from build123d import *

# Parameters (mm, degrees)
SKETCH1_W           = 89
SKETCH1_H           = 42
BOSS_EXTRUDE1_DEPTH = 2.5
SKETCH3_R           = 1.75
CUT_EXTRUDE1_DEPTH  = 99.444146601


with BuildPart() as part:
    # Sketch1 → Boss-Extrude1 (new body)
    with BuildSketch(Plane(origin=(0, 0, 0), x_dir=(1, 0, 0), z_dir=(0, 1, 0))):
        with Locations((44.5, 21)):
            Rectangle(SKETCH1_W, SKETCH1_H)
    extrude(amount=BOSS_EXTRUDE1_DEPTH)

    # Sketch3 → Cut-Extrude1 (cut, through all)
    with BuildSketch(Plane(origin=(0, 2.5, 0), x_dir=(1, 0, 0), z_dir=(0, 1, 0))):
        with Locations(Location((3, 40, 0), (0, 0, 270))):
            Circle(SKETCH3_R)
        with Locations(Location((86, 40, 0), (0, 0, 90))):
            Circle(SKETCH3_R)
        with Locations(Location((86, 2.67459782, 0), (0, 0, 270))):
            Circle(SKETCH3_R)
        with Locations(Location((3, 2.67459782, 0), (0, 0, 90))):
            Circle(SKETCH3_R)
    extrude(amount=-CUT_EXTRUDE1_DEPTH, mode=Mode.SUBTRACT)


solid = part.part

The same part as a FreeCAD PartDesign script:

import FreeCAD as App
import Part
import Sketcher

V = App.Vector
Q = App.Units.Quantity


def add_polygon(sketch, points):
    """Adds a closed chain of lines whose ends are joined by coincident constraints."""
    first, n = sketch.GeometryCount, len(points)
    for a, b in zip(points, points[1:] + points[:1]):
        sketch.addGeometry(Part.LineSegment(App.Vector(*a, 0), App.Vector(*b, 0)), False)
    for i in range(n):
        sketch.addConstraint(Sketcher.Constraint("Coincident", first + i, 2, first + (i + 1) % n, 1))

doc = App.newDocument("Part")
params = doc.addObject("Spreadsheet::Sheet", "Params")
for row, (alias, value) in enumerate([
    ("sketch1_width", "89 mm"),
    ("sketch1_height", "42 mm"),
    ("pad1_length", "2.5 mm"),
    ("sketch2_diameter", "3.5 mm"),
], start=1):
    params.set(f"A{row}", alias)
    params.set(f"B{row}", "=" + value)
    params.setAlias(f"B{row}", alias)

body = doc.addObject("PartDesign::Body", "Body")

sketch1 = doc.addObject("Sketcher::SketchObject", "Sketch")
body.addObject(sketch1)
sketch1.AttachmentSupport = (doc.XZ_Plane, [""])
sketch1.MapMode = "FlatFace"
add_polygon(sketch1, [(0, -42), (0, 0), (89, 0), (89, -42)])
sketch1.addConstraint(Sketcher.Constraint("Vertical", 0))
sketch1.addConstraint(Sketcher.Constraint("Horizontal", 1))
sketch1.addConstraint(Sketcher.Constraint("Vertical", 2))
sketch1.addConstraint(Sketcher.Constraint("Horizontal", 3))
sketch1.addConstraint(Sketcher.Constraint("Coincident", 0, 2, -1, 1))
sketch1.addConstraint(Sketcher.Constraint("DistanceX", 1, 1, 1, 2, Q("89 mm")))
sketch1.addConstraint(Sketcher.Constraint("DistanceY", 0, 1, 0, 2, Q("42 mm")))
sketch1.setExpression("Constraints[9]", "Params.sketch1_width")
sketch1.setExpression("Constraints[10]", "Params.sketch1_height")
pad1 = doc.addObject("PartDesign::Pad", "Pad")
body.addObject(pad1)
pad1.Profile = sketch1
pad1.setExpression("Length", "Params.pad1_length")
pad1.Reversed = True

sketch2 = doc.addObject("Sketcher::SketchObject", "Sketch001")
body.addObject(sketch2)
sketch2.AttachmentSupport = (doc.XZ_Plane, [""])
sketch2.MapMode = "FlatFace"
sketch2.AttachmentOffset = App.Placement(V(0, 0, -2.5), App.Rotation())
sketch2.addGeometry(Part.Circle(V(3, -40, 0), V(0, 0, 1), 1.8), False)
sketch2.addGeometry(Part.Circle(V(86, -40, 0), V(0, 0, 1), 1.8), False)
sketch2.addGeometry(Part.Circle(V(86, -2.7, 0), V(0, 0, 1), 1.8), False)
sketch2.addGeometry(Part.Circle(V(3, -2.7, 0), V(0, 0, 1), 1.8), False)
sketch2.addConstraint(Sketcher.Constraint("Equal", 0, 1))
sketch2.addConstraint(Sketcher.Constraint("Equal", 1, 2))
sketch2.addConstraint(Sketcher.Constraint("Equal", 2, 3))
sketch2.addConstraint(Sketcher.Constraint("Horizontal", 0, 3, 1, 3))
sketch2.addConstraint(Sketcher.Constraint("Horizontal", 2, 3, 3, 3))
sketch2.addConstraint(Sketcher.Constraint("Vertical", 1, 3, 2, 3))
sketch2.addConstraint(Sketcher.Constraint("Vertical", 0, 3, 3, 3))
sketch2.addConstraint(Sketcher.Constraint("Diameter", 0, Q("3.5 mm")))
sketch2.addConstraint(Sketcher.Constraint("DistanceX", -1, 1, 0, 3, Q("3 mm")))
sketch2.addConstraint(Sketcher.Constraint("DistanceY", 0, 3, -1, 1, Q("40 mm")))
sketch2.addConstraint(Sketcher.Constraint("DistanceX", -1, 1, 1, 3, Q("86 mm")))
sketch2.addConstraint(Sketcher.Constraint("DistanceY", 2, 3, -1, 1, Q("2.674598 mm")))
sketch2.setExpression("Constraints[7]", "Params.sketch2_diameter")
pocket1 = doc.addObject("PartDesign::Pocket", "Pocket")
body.addObject(pocket1)
pocket1.Profile = sketch2
pocket1.Type = "ThroughAll"
pocket1.Reversed = True

doc.recompute()
